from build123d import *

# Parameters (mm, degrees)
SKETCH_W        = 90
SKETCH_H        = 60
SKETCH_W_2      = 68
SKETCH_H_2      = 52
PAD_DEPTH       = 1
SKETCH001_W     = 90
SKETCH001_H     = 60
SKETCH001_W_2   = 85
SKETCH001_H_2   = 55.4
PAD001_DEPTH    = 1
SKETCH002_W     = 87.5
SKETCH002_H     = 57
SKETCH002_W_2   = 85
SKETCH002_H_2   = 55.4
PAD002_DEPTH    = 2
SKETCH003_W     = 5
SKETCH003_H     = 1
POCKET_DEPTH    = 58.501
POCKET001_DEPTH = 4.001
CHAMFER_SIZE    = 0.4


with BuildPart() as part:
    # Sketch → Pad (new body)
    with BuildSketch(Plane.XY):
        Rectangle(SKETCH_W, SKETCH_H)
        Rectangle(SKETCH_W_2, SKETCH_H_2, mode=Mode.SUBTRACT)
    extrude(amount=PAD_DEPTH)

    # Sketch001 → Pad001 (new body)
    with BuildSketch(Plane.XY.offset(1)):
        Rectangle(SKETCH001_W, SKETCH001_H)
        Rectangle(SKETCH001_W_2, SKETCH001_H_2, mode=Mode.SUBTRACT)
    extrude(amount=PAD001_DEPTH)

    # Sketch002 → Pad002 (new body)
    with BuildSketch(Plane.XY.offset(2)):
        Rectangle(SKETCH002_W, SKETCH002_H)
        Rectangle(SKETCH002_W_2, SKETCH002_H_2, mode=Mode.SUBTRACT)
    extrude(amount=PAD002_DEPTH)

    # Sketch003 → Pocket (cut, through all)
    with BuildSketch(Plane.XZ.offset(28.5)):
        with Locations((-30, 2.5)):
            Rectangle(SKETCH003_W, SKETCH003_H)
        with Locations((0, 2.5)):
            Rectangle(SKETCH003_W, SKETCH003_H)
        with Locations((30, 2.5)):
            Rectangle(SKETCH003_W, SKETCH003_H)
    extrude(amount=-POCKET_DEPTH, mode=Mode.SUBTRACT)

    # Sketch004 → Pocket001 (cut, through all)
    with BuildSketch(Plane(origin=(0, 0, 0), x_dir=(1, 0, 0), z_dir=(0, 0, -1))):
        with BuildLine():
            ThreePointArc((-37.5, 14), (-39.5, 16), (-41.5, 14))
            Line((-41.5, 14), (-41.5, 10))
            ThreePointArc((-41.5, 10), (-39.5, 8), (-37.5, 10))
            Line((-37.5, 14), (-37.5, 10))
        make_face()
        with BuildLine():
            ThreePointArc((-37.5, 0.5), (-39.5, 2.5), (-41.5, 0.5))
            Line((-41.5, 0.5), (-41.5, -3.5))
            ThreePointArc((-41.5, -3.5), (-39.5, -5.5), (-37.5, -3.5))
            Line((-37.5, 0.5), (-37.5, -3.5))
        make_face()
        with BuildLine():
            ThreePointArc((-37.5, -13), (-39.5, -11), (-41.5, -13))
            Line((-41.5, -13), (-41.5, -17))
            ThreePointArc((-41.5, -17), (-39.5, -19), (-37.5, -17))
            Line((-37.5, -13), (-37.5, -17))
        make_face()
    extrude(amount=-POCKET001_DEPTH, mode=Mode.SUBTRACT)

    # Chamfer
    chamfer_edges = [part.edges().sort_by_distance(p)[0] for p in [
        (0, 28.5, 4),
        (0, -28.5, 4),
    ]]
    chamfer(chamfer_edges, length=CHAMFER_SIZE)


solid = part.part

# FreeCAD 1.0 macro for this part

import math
import FreeCAD as App
import Part
import Sketcher

V = App.Vector
Q = App.Units.Quantity


def edges_at(feature, points):
    """Names of the edges that pass closest to the given points."""
    edges = feature.Shape.Edges
    near = lambda p: min(range(len(edges)), key=lambda i: edges[i].distToShape(Part.Vertex(*p))[0])
    return sorted({f"Edge{near(p) + 1}" for p in points})

doc = App.newDocument("Part")
body = doc.addObject("PartDesign::Body", "Body")

sketch1 = body.newObject("Sketcher::SketchObject", "Sketch")
sketch1.AttachmentSupport = (doc.getObject("XY_Plane"), [""])
sketch1.MapMode = "FlatFace"
sketch1.addGeometry(Part.LineSegment(V(-45, 30, 0), V(-45, -30, 0)), False)
sketch1.addGeometry(Part.LineSegment(V(-45, -30, 0), V(45, -30, 0)), False)
sketch1.addGeometry(Part.LineSegment(V(45, -30, 0), V(45, 30, 0)), False)
sketch1.addGeometry(Part.LineSegment(V(45, 30, 0), V(-45, 30, 0)), False)
sketch1.addGeometry(Part.LineSegment(V(34, -26, 0), V(-34, -26, 0)), False)
sketch1.addGeometry(Part.LineSegment(V(-34, -26, 0), V(-34, 26, 0)), False)
sketch1.addGeometry(Part.LineSegment(V(-34, 26, 0), V(34, 26, 0)), False)
sketch1.addGeometry(Part.LineSegment(V(34, 26, 0), V(34, -26, 0)), False)
sketch1.addConstraint(Sketcher.Constraint("Coincident", 0, 2, 1, 1))
sketch1.addConstraint(Sketcher.Constraint("Coincident", 1, 2, 2, 1))
sketch1.addConstraint(Sketcher.Constraint("Coincident", 2, 2, 3, 1))
sketch1.addConstraint(Sketcher.Constraint("Coincident", 3, 2, 0, 1))
sketch1.addConstraint(Sketcher.Constraint("Coincident", 4, 2, 5, 1))
sketch1.addConstraint(Sketcher.Constraint("Coincident", 5, 2, 6, 1))
sketch1.addConstraint(Sketcher.Constraint("Coincident", 6, 2, 7, 1))
sketch1.addConstraint(Sketcher.Constraint("Coincident", 7, 2, 4, 1))
sketch1.addConstraint(Sketcher.Constraint("Vertical", 0))
sketch1.addConstraint(Sketcher.Constraint("Horizontal", 1))
sketch1.addConstraint(Sketcher.Constraint("Vertical", 2))
sketch1.addConstraint(Sketcher.Constraint("Horizontal", 3))
sketch1.addConstraint(Sketcher.Constraint("Horizontal", 4))
sketch1.addConstraint(Sketcher.Constraint("Vertical", 5))
sketch1.addConstraint(Sketcher.Constraint("Horizontal", 6))
sketch1.addConstraint(Sketcher.Constraint("Vertical", 7))
sketch1.addConstraint(Sketcher.Constraint("Symmetric", 0, 2, 2, 2, -1, 1))
sketch1.addConstraint(Sketcher.Constraint("Symmetric", 4, 2, 6, 2, -1, 1))
sketch1.addConstraint(Sketcher.Constraint("DistanceX", 1, 1, 1, 2, Q("90 mm")))
sketch1.addConstraint(Sketcher.Constraint("DistanceX", 4, 2, 4, 1, Q("68 mm")))
sketch1.addConstraint(Sketcher.Constraint("DistanceY", 0, 2, 0, 1, Q("60 mm")))
sketch1.addConstraint(Sketcher.Constraint("DistanceY", 5, 1, 5, 2, Q("52 mm")))
pad1 = body.newObject("PartDesign::Pad", "Pad")
pad1.Profile = sketch1
pad1.Length = 1

sketch2 = body.newObject("Sketcher::SketchObject", "Sketch001")
sketch2.AttachmentSupport = (doc.getObject("XY_Plane"), [""])
sketch2.MapMode = "FlatFace"
sketch2.AttachmentOffset = App.Placement(V(0, 0, 1), App.Rotation())
sketch2.addGeometry(Part.LineSegment(V(-45, 30, 0), V(-45, -30, 0)), False)
sketch2.addGeometry(Part.LineSegment(V(-45, -30, 0), V(45, -30, 0)), False)
sketch2.addGeometry(Part.LineSegment(V(45, -30, 0), V(45, 30, 0)), False)
sketch2.addGeometry(Part.LineSegment(V(45, 30, 0), V(-45, 30, 0)), False)
sketch2.addGeometry(Part.LineSegment(V(42.5, -27.7, 0), V(-42.5, -27.7, 0)), False)
sketch2.addGeometry(Part.LineSegment(V(-42.5, -27.7, 0), V(-42.5, 27.7, 0)), False)
sketch2.addGeometry(Part.LineSegment(V(-42.5, 27.7, 0), V(42.5, 27.7, 0)), False)
sketch2.addGeometry(Part.LineSegment(V(42.5, 27.7, 0), V(42.5, -27.7, 0)), False)
sketch2.addConstraint(Sketcher.Constraint("Coincident", 0, 2, 1, 1))
sketch2.addConstraint(Sketcher.Constraint("Coincident", 1, 2, 2, 1))
sketch2.addConstraint(Sketcher.Constraint("Coincident", 2, 2, 3, 1))
sketch2.addConstraint(Sketcher.Constraint("Coincident", 3, 2, 0, 1))
sketch2.addConstraint(Sketcher.Constraint("Coincident", 4, 2, 5, 1))
sketch2.addConstraint(Sketcher.Constraint("Coincident", 5, 2, 6, 1))
sketch2.addConstraint(Sketcher.Constraint("Coincident", 6, 2, 7, 1))
sketch2.addConstraint(Sketcher.Constraint("Coincident", 7, 2, 4, 1))
sketch2.addConstraint(Sketcher.Constraint("Vertical", 0))
sketch2.addConstraint(Sketcher.Constraint("Horizontal", 1))
sketch2.addConstraint(Sketcher.Constraint("Vertical", 2))
sketch2.addConstraint(Sketcher.Constraint("Horizontal", 3))
sketch2.addConstraint(Sketcher.Constraint("Horizontal", 4))
sketch2.addConstraint(Sketcher.Constraint("Vertical", 5))
sketch2.addConstraint(Sketcher.Constraint("Horizontal", 6))
sketch2.addConstraint(Sketcher.Constraint("Vertical", 7))
sketch2.addConstraint(Sketcher.Constraint("Symmetric", 0, 2, 2, 2, -1, 1))
sketch2.addConstraint(Sketcher.Constraint("Symmetric", 4, 2, 6, 2, -1, 1))
sketch2.addConstraint(Sketcher.Constraint("DistanceX", 1, 1, 1, 2, Q("90 mm")))
sketch2.addConstraint(Sketcher.Constraint("DistanceX", 4, 2, 4, 1, Q("85 mm")))
sketch2.addConstraint(Sketcher.Constraint("DistanceY", 0, 2, 0, 1, Q("60 mm")))
sketch2.addConstraint(Sketcher.Constraint("DistanceY", 5, 1, 5, 2, Q("55.4 mm")))
pad2 = body.newObject("PartDesign::Pad", "Pad001")
pad2.Profile = sketch2
pad2.Length = 1

sketch3 = body.newObject("Sketcher::SketchObject", "Sketch002")
sketch3.AttachmentSupport = (doc.getObject("XY_Plane"), [""])
sketch3.MapMode = "FlatFace"
sketch3.AttachmentOffset = App.Placement(V(0, 0, 2), App.Rotation())
sketch3.addGeometry(Part.LineSegment(V(-43.75, 28.5, 0), V(-43.75, -28.5, 0)), False)
sketch3.addGeometry(Part.LineSegment(V(-43.75, -28.5, 0), V(43.75, -28.5, 0)), False)
sketch3.addGeometry(Part.LineSegment(V(43.75, -28.5, 0), V(43.75, 28.5, 0)), False)
sketch3.addGeometry(Part.LineSegment(V(43.75, 28.5, 0), V(-43.75, 28.5, 0)), False)
sketch3.addGeometry(Part.LineSegment(V(42.5, -27.7, 0), V(-42.5, -27.7, 0)), False)
sketch3.addGeometry(Part.LineSegment(V(-42.5, -27.7, 0), V(-42.5, 27.7, 0)), False)
sketch3.addGeometry(Part.LineSegment(V(-42.5, 27.7, 0), V(42.5, 27.7, 0)), False)
sketch3.addGeometry(Part.LineSegment(V(42.5, 27.7, 0), V(42.5, -27.7, 0)), False)
sketch3.addConstraint(Sketcher.Constraint("Coincident", 0, 2, 1, 1))
sketch3.addConstraint(Sketcher.Constraint("Coincident", 1, 2, 2, 1))
sketch3.addConstraint(Sketcher.Constraint("Coincident", 2, 2, 3, 1))
sketch3.addConstraint(Sketcher.Constraint("Coincident", 3, 2, 0, 1))
sketch3.addConstraint(Sketcher.Constraint("Coincident", 4, 2, 5, 1))
sketch3.addConstraint(Sketcher.Constraint("Coincident", 5, 2, 6, 1))
sketch3.addConstraint(Sketcher.Constraint("Coincident", 6, 2, 7, 1))
sketch3.addConstraint(Sketcher.Constraint("Coincident", 7, 2, 4, 1))
sketch3.addConstraint(Sketcher.Constraint("Vertical", 0))
sketch3.addConstraint(Sketcher.Constraint("Horizontal", 1))
sketch3.addConstraint(Sketcher.Constraint("Vertical", 2))
sketch3.addConstraint(Sketcher.Constraint("Horizontal", 3))
sketch3.addConstraint(Sketcher.Constraint("Horizontal", 4))
sketch3.addConstraint(Sketcher.Constraint("Vertical", 5))
sketch3.addConstraint(Sketcher.Constraint("Horizontal", 6))
sketch3.addConstraint(Sketcher.Constraint("Vertical", 7))
sketch3.addConstraint(Sketcher.Constraint("Symmetric", 0, 2, 2, 2, -1, 1))
sketch3.addConstraint(Sketcher.Constraint("Symmetric", 4, 2, 6, 2, -1, 1))
sketch3.addConstraint(Sketcher.Constraint("DistanceX", 4, 2, 4, 1, Q("85 mm")))
sketch3.addConstraint(Sketcher.Constraint("DistanceY", 0, 2, 0, 1, Q("57 mm")))
sketch3.addConstraint(Sketcher.Constraint("DistanceX", 1, 1, 1, 2, Q("87.5 mm")))
sketch3.addConstraint(Sketcher.Constraint("DistanceY", 5, 1, 5, 2, Q("55.4 mm")))
pad3 = body.newObject("PartDesign::Pad", "Pad002")
pad3.Profile = sketch3
pad3.Length = 2

sketch4 = body.newObject("Sketcher::SketchObject", "Sketch003")
sketch4.AttachmentSupport = (doc.getObject("XZ_Plane"), [""])
sketch4.MapMode = "FlatFace"
sketch4.AttachmentOffset = App.Placement(V(0, 0, 28.5), App.Rotation())
sketch4.addGeometry(Part.LineSegment(V(-32.5, 3, 0), V(-32.5, 2, 0)), False)
sketch4.addGeometry(Part.LineSegment(V(-32.5, 2, 0), V(-27.5, 2, 0)), False)
sketch4.addGeometry(Part.LineSegment(V(-27.5, 2, 0), V(-27.5, 3, 0)), False)
sketch4.addGeometry(Part.LineSegment(V(-27.5, 3, 0), V(-32.5, 3, 0)), False)
sketch4.addGeometry(Part.LineSegment(V(-2.5, 3, 0), V(-2.5, 2, 0)), False)
sketch4.addGeometry(Part.LineSegment(V(-2.5, 2, 0), V(2.5, 2, 0)), False)
sketch4.addGeometry(Part.LineSegment(V(2.5, 2, 0), V(2.5, 3, 0)), False)
sketch4.addGeometry(Part.LineSegment(V(2.5, 3, 0), V(-2.5, 3, 0)), False)
sketch4.addGeometry(Part.LineSegment(V(27.5, 3, 0), V(27.5, 2, 0)), False)
sketch4.addGeometry(Part.LineSegment(V(27.5, 2, 0), V(32.5, 2, 0)), False)
sketch4.addGeometry(Part.LineSegment(V(32.5, 2, 0), V(32.5, 3, 0)), False)
sketch4.addGeometry(Part.LineSegment(V(32.5, 3, 0), V(27.5, 3, 0)), False)
sketch4.addConstraint(Sketcher.Constraint("Coincident", 0, 2, 1, 1))
sketch4.addConstraint(Sketcher.Constraint("Coincident", 1, 2, 2, 1))
sketch4.addConstraint(Sketcher.Constraint("Coincident", 2, 2, 3, 1))
sketch4.addConstraint(Sketcher.Constraint("Coincident", 3, 2, 0, 1))
sketch4.addConstraint(Sketcher.Constraint("Coincident", 4, 2, 5, 1))
sketch4.addConstraint(Sketcher.Constraint("Coincident", 5, 2, 6, 1))
sketch4.addConstraint(Sketcher.Constraint("Coincident", 6, 2, 7, 1))
sketch4.addConstraint(Sketcher.Constraint("Coincident", 7, 2, 4, 1))
sketch4.addConstraint(Sketcher.Constraint("Coincident", 8, 2, 9, 1))
sketch4.addConstraint(Sketcher.Constraint("Coincident", 9, 2, 10, 1))
sketch4.addConstraint(Sketcher.Constraint("Coincident", 10, 2, 11, 1))
sketch4.addConstraint(Sketcher.Constraint("Coincident", 11, 2, 8, 1))
sketch4.addConstraint(Sketcher.Constraint("Vertical", 0))
sketch4.addConstraint(Sketcher.Constraint("Horizontal", 1))
sketch4.addConstraint(Sketcher.Constraint("Vertical", 2))
sketch4.addConstraint(Sketcher.Constraint("Horizontal", 3))
sketch4.addConstraint(Sketcher.Constraint("Vertical", 4))
sketch4.addConstraint(Sketcher.Constraint("Horizontal", 5))
sketch4.addConstraint(Sketcher.Constraint("Vertical", 6))
sketch4.addConstraint(Sketcher.Constraint("Horizontal", 7))
sketch4.addConstraint(Sketcher.Constraint("Vertical", 8))
sketch4.addConstraint(Sketcher.Constraint("Horizontal", 9))
sketch4.addConstraint(Sketcher.Constraint("Vertical", 10))
sketch4.addConstraint(Sketcher.Constraint("Horizontal", 11))
sketch4.addConstraint(Sketcher.Constraint("Symmetric", 1, 2, 8, 2, -2))
sketch4.addConstraint(Sketcher.Constraint("Symmetric", 3, 2, 10, 2, -2))
sketch4.addConstraint(Sketcher.Constraint("Horizontal", 1, 2, 4, 2))
sketch4.addConstraint(Sketcher.Constraint("Horizontal", 3, 2, 6, 2))
sketch4.addConstraint(Sketcher.Constraint("Equal", 3, 5))
sketch4.addConstraint(Sketcher.Constraint("DistanceX", 1, 1, 1, 2, Q("5 mm")))
sketch4.addConstraint(Sketcher.Constraint("DistanceY", 0, 2, 0, 1, Q("1 mm")))
sketch4.addConstraint(Sketcher.Constraint("DistanceY", -1, 1, 0, 2, Q("2 mm")))
sketch4.addConstraint(Sketcher.Constraint("DistanceX", 1, 2, 4, 2, Q("25 mm")))
sketch4.addConstraint(Sketcher.Constraint("DistanceX", 5, 2, 8, 2, Q("25 mm")))
pocket1 = body.newObject("PartDesign::Pocket", "Pocket")
pocket1.Profile = sketch4
pocket1.Type = "ThroughAll"

sketch5 = body.newObject("Sketcher::SketchObject", "Sketch004")
sketch5.AttachmentSupport = (doc.getObject("XY_Plane"), [""])
sketch5.MapMode = "FlatFace"
sketch5.addGeometry(Part.ArcOfCircle(Part.Circle(V(-39.5, -14, 0), V(0, 0, 1), 2), math.radians(180), math.radians(360)), False)
sketch5.addGeometry(Part.LineSegment(V(-41.5, -14, 0), V(-41.5, -10, 0)), False)
sketch5.addGeometry(Part.ArcOfCircle(Part.Circle(V(-39.5, -10, 0), V(0, 0, 1), 2), math.radians(0), math.radians(180)), False)
sketch5.addGeometry(Part.LineSegment(V(-37.5, -10, 0), V(-37.5, -14, 0)), False)
sketch5.addGeometry(Part.ArcOfCircle(Part.Circle(V(-39.5, -0.5, 0), V(0, 0, 1), 2), math.radians(180), math.radians(360)), False)
sketch5.addGeometry(Part.LineSegment(V(-41.5, -0.5, 0), V(-41.5, 3.5, 0)), False)
sketch5.addGeometry(Part.ArcOfCircle(Part.Circle(V(-39.5, 3.5, 0), V(0, 0, 1), 2), math.radians(0), math.radians(180)), False)
sketch5.addGeometry(Part.LineSegment(V(-37.5, 3.5, 0), V(-37.5, -0.5, 0)), False)
sketch5.addGeometry(Part.ArcOfCircle(Part.Circle(V(-39.5, 13, 0), V(0, 0, 1), 2), math.radians(180), math.radians(360)), False)
sketch5.addGeometry(Part.LineSegment(V(-41.5, 13, 0), V(-41.5, 17, 0)), False)
sketch5.addGeometry(Part.ArcOfCircle(Part.Circle(V(-39.5, 17, 0), V(0, 0, 1), 2), math.radians(0), math.radians(180)), False)
sketch5.addGeometry(Part.LineSegment(V(-37.5, 17, 0), V(-37.5, 13, 0)), False)
sketch5.addConstraint(Sketcher.Constraint("Tangent", 0, 1, 1, 1))
sketch5.addConstraint(Sketcher.Constraint("Tangent", 1, 2, 2, 2))
sketch5.addConstraint(Sketcher.Constraint("Tangent", 2, 1, 3, 1))
sketch5.addConstraint(Sketcher.Constraint("Tangent", 3, 2, 0, 2))
sketch5.addConstraint(Sketcher.Constraint("Tangent", 4, 1, 5, 1))
sketch5.addConstraint(Sketcher.Constraint("Tangent", 5, 2, 6, 2))
sketch5.addConstraint(Sketcher.Constraint("Tangent", 6, 1, 7, 1))
sketch5.addConstraint(Sketcher.Constraint("Tangent", 7, 2, 4, 2))
sketch5.addConstraint(Sketcher.Constraint("Tangent", 8, 1, 9, 1))
sketch5.addConstraint(Sketcher.Constraint("Tangent", 9, 2, 10, 2))
sketch5.addConstraint(Sketcher.Constraint("Tangent", 10, 1, 11, 1))
sketch5.addConstraint(Sketcher.Constraint("Tangent", 11, 2, 8, 2))
sketch5.addConstraint(Sketcher.Constraint("Vertical", 1))
sketch5.addConstraint(Sketcher.Constraint("Vertical", 3))
sketch5.addConstraint(Sketcher.Constraint("Vertical", 5))
sketch5.addConstraint(Sketcher.Constraint("Vertical", 7))
sketch5.addConstraint(Sketcher.Constraint("Vertical", 9))
sketch5.addConstraint(Sketcher.Constraint("Vertical", 11))
sketch5.addConstraint(Sketcher.Constraint("Equal", 2, 4))
sketch5.addConstraint(Sketcher.Constraint("Equal", 6, 8))
sketch5.addConstraint(Sketcher.Constraint("Vertical", 2, 3, 4, 3))
sketch5.addConstraint(Sketcher.Constraint("Vertical", 6, 3, 8, 3))
sketch5.addConstraint(Sketcher.Constraint("Equal", 3, 5))
sketch5.addConstraint(Sketcher.Constraint("Equal", 7, 9))
sketch5.addConstraint(Sketcher.Constraint("Radius", 0, Q("2 mm")))
sketch5.addConstraint(Sketcher.Constraint("DistanceY", 1, 1, 1, 2, Q("4 mm")))
sketch5.addConstraint(Sketcher.Constraint("DistanceY", 0, 3, -1, 1, Q("14 mm")))
sketch5.addConstraint(Sketcher.Constraint("DistanceY", -1, 1, 8, 3, Q("13 mm")))
sketch5.addConstraint(Sketcher.Constraint("DistanceX", 0, 3, -1, 1, Q("39.5 mm")))
sketch5.addConstraint(Sketcher.Constraint("DistanceY", 4, 3, -1, 1, Q("0.5 mm")))
pocket2 = body.newObject("PartDesign::Pocket", "Pocket001")
pocket2.Profile = sketch5
pocket2.Type = "ThroughAll"
pocket2.Reversed = True
doc.recompute()

chamfer = body.newObject("PartDesign::Chamfer", "Chamfer")
chamfer.Base = (pocket2, edges_at(pocket2, [(0, 28.5, 4), (0, -28.5, 4)]))
chamfer.Size = 0.4

doc.recompute()
